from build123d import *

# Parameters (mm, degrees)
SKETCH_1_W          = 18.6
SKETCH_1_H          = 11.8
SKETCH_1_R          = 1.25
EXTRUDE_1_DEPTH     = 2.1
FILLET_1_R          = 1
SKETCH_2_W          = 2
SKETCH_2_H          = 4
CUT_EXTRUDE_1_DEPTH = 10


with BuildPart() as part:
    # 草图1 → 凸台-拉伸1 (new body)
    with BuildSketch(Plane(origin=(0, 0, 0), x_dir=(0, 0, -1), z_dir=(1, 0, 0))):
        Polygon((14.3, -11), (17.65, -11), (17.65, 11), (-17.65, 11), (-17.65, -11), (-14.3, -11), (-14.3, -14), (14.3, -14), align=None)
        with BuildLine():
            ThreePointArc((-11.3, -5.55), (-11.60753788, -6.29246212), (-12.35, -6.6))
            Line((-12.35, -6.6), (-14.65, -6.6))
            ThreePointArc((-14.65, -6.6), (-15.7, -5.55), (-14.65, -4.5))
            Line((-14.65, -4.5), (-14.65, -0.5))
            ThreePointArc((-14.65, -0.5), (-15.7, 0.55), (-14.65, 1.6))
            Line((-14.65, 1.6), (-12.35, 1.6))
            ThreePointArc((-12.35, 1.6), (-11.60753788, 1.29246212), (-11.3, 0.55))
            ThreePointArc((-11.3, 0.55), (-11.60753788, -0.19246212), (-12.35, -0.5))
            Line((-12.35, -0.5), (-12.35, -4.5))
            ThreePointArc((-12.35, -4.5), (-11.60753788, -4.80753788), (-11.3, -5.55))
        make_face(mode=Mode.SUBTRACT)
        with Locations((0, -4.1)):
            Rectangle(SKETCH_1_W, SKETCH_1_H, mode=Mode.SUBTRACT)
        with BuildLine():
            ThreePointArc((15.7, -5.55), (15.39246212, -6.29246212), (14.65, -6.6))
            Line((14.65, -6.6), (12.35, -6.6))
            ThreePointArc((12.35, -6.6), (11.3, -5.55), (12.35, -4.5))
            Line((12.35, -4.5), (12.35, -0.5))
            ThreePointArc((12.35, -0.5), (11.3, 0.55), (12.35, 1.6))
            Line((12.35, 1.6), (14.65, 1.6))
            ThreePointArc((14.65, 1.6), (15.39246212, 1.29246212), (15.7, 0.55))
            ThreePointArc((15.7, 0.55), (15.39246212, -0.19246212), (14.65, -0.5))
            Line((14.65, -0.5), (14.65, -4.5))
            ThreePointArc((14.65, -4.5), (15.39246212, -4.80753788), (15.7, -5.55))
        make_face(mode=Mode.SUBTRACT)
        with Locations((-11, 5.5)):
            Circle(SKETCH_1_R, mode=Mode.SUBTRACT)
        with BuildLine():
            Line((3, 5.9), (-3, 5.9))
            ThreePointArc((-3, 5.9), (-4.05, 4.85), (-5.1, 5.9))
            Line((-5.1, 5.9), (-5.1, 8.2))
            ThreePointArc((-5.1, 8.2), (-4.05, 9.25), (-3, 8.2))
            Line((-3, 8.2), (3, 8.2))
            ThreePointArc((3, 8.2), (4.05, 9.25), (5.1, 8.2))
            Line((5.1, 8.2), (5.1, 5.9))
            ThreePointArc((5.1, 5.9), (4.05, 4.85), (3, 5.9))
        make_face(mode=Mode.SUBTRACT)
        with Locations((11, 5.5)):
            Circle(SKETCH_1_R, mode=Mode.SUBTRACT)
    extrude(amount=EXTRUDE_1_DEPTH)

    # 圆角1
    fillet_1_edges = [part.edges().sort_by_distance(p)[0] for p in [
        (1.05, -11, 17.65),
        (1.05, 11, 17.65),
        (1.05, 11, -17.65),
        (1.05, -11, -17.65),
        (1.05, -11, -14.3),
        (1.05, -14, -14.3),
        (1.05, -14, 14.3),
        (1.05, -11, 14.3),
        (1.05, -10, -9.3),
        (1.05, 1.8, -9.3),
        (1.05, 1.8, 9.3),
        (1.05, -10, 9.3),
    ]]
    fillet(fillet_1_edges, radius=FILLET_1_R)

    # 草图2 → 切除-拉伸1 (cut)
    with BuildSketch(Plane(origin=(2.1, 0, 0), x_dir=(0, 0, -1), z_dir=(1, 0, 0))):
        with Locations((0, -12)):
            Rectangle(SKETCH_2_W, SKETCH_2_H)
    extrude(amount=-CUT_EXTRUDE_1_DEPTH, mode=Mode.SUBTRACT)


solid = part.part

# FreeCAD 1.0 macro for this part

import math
import FreeCAD as App
import Part
import Sketcher
Q = App.Units.Quantity


def edges_at(feature, points):
    """Names of the edges that pass closest to the given points."""
    edges = feature.Shape.Edges
    near = lambda p: min(range(len(edges)), key=lambda i: edges[i].distToShape(Part.Vertex(*p))[0])
    return sorted({f"Edge{near(p) + 1}" for p in points})


def add_polygon(sketch, points):
    """Adds a closed chain of lines whose ends are joined by coincident constraints."""
    first, n = sketch.GeometryCount, len(points)
    for a, b in zip(points, points[1:] + points[:1]):
        sketch.addGeometry(Part.LineSegment(App.Vector(*a, 0), App.Vector(*b, 0)), False)
    for i in range(n):
        sketch.addConstraint(Sketcher.Constraint("Coincident", first + i, 2, first + (i + 1) % n, 1))

doc = App.newDocument("Part")
body = doc.addObject("PartDesign::Body", "Body")

# Sketch on YZ plane
sketch1 = body.newObject("Sketcher::SketchObject", "Sketch")
sketch1.AttachmentSupport = (doc.getObject("YZ_Plane"), [""])
sketch1.MapMode = "FlatFace"
add_polygon(sketch1, [(-11, -14.3), (-11, -17.6), (11, -17.6), (11, 17.6), (-11, 17.6), (-11, 14.3), (-14, 14.3), (-14, -14.3)])  # lines 0-7
sketch1.addGeometry(Part.ArcOfCircle(Part.Circle(App.Vector(-5.6, 12.4, 0), App.Vector(0, 0, 1), 1.1), math.radians(-90), math.radians(0)), False)  # 8
sketch1.addGeometry(Part.ArcOfCircle(Part.Circle(App.Vector(-5.5, 12.4, 0), App.Vector(0, 0, 1), 1.1), math.radians(-180), math.radians(-90)), False)  # 9
sketch1.addGeometry(Part.LineSegment(App.Vector(-6.6, 12.3, 0), App.Vector(-6.6, 14.7, 0)), False)  # 10
sketch1.addGeometry(Part.ArcOfCircle(Part.Circle(App.Vector(-5.5, 14.7, 0), App.Vector(0, 0, 1), 1.1), math.radians(0), math.radians(180)), False)  # 11
sketch1.addGeometry(Part.LineSegment(App.Vector(-4.5, 14.7, 0), App.Vector(-0.5, 14.7, 0)), False)  # 12
sketch1.addGeometry(Part.ArcOfCircle(Part.Circle(App.Vector(0.6, 14.7, 0), App.Vector(0, 0, 1), 1.1), math.radians(0), math.radians(180)), False)  # 13
sketch1.addGeometry(Part.LineSegment(App.Vector(1.6, 14.7, 0), App.Vector(1.6, 12.3, 0)), False)  # 14
sketch1.addGeometry(Part.ArcOfCircle(Part.Circle(App.Vector(0.5, 12.4, 0), App.Vector(0, 0, 1), 1.1), math.radians(-90), math.radians(0)), False)  # 15
sketch1.addGeometry(Part.ArcOfCircle(Part.Circle(App.Vector(0.6, 12.4, 0), App.Vector(0, 0, 1), 1.1), math.radians(-180), math.radians(-90)), False)  # 16
sketch1.addGeometry(Part.LineSegment(App.Vector(-0.5, 12.3, 0), App.Vector(-4.5, 12.3, 0)), False)  # 17
add_polygon(sketch1, [(-10, -9.3), (-10, 9.3), (1.8, 9.3), (1.8, -9.3)])  # lines 18-21
sketch1.addGeometry(Part.ArcOfCircle(Part.Circle(App.Vector(-5.6, -14.6, 0), App.Vector(0, 0, 1), 1.1), math.radians(-90), math.radians(0)), False)  # 22
sketch1.addGeometry(Part.ArcOfCircle(Part.Circle(App.Vector(-5.5, -14.6, 0), App.Vector(0, 0, 1), 1.1), math.radians(-180), math.radians(-90)), False)  # 23
sketch1.addGeometry(Part.LineSegment(App.Vector(-6.6, -14.7, 0), App.Vector(-6.6, -12.3, 0)), False)  # 24
sketch1.addGeometry(Part.ArcOfCircle(Part.Circle(App.Vector(-5.5, -12.3, 0), App.Vector(0, 0, 1), 1.1), math.radians(0), math.radians(180)), False)  # 25
sketch1.addGeometry(Part.LineSegment(App.Vector(-4.5, -12.3, 0), App.Vector(-0.5, -12.3, 0)), False)  # 26
sketch1.addGeometry(Part.ArcOfCircle(Part.Circle(App.Vector(0.6, -12.3, 0), App.Vector(0, 0, 1), 1.1), math.radians(0), math.radians(180)), False)  # 27
sketch1.addGeometry(Part.LineSegment(App.Vector(1.6, -12.3, 0), App.Vector(1.6, -14.7, 0)), False)  # 28
sketch1.addGeometry(Part.ArcOfCircle(Part.Circle(App.Vector(0.5, -14.6, 0), App.Vector(0, 0, 1), 1.1), math.radians(-90), math.radians(0)), False)  # 29
sketch1.addGeometry(Part.ArcOfCircle(Part.Circle(App.Vector(0.6, -14.6, 0), App.Vector(0, 0, 1), 1.1), math.radians(-180), math.radians(-90)), False)  # 30
sketch1.addGeometry(Part.LineSegment(App.Vector(-0.5, -14.7, 0), App.Vector(-4.5, -14.7, 0)), False)  # 31
sketch1.addGeometry(Part.Circle(App.Vector(5.5, 11, 0), App.Vector(0, 0, 1), 1.2), False)  # 32
sketch1.addGeometry(Part.ArcOfCircle(Part.Circle(App.Vector(5.9, -4, 0), App.Vector(0, 0, 1), 1.1), math.radians(90), math.radians(270)), False)  # 33
sketch1.addGeometry(Part.LineSegment(App.Vector(5.9, -3, 0), App.Vector(5.9, 3, 0)), False)  # 34
sketch1.addGeometry(Part.ArcOfCircle(Part.Circle(App.Vector(5.9, 4, 0), App.Vector(0, 0, 1), 1.1), math.radians(90), math.radians(270)), False)  # 35
sketch1.addGeometry(Part.LineSegment(App.Vector(5.9, 5.1, 0), App.Vector(8.2, 5.1, 0)), False)  # 36
sketch1.addGeometry(Part.ArcOfCircle(Part.Circle(App.Vector(8.2, 4, 0), App.Vector(0, 0, 1), 1.1), math.radians(-90), math.radians(90)), False)  # 37
sketch1.addGeometry(Part.LineSegment(App.Vector(8.2, 3, 0), App.Vector(8.2, -3, 0)), False)  # 38
sketch1.addGeometry(Part.ArcOfCircle(Part.Circle(App.Vector(8.2, -4, 0), App.Vector(0, 0, 1), 1.1), math.radians(-90), math.radians(90)), False)  # 39
sketch1.addGeometry(Part.LineSegment(App.Vector(8.2, -5.1, 0), App.Vector(5.9, -5.1, 0)), False)  # 40
sketch1.addGeometry(Part.Circle(App.Vector(5.5, -11, 0), App.Vector(0, 0, 1), 1.2), False)  # 41
sketch1.addConstraint(Sketcher.Constraint("Tangent", 8, 1, 9, 2))
sketch1.addConstraint(Sketcher.Constraint("Tangent", 9, 1, 10, 1))
sketch1.addConstraint(Sketcher.Constraint("Tangent", 10, 2, 11, 2))
sketch1.addConstraint(Sketcher.Constraint("Coincident", 11, 1, 12, 1))
sketch1.addConstraint(Sketcher.Constraint("Coincident", 12, 2, 13, 2))
sketch1.addConstraint(Sketcher.Constraint("Tangent", 13, 1, 14, 1))
sketch1.addConstraint(Sketcher.Constraint("Tangent", 14, 2, 15, 2))
sketch1.addConstraint(Sketcher.Constraint("Tangent", 15, 1, 16, 2))
sketch1.addConstraint(Sketcher.Constraint("Coincident", 16, 1, 17, 1))
sketch1.addConstraint(Sketcher.Constraint("Coincident", 17, 2, 8, 2))
sketch1.addConstraint(Sketcher.Constraint("Tangent", 22, 1, 23, 2))
sketch1.addConstraint(Sketcher.Constraint("Tangent", 23, 1, 24, 1))
sketch1.addConstraint(Sketcher.Constraint("Tangent", 24, 2, 25, 2))
sketch1.addConstraint(Sketcher.Constraint("Coincident", 25, 1, 26, 1))
sketch1.addConstraint(Sketcher.Constraint("Coincident", 26, 2, 27, 2))
sketch1.addConstraint(Sketcher.Constraint("Tangent", 27, 1, 28, 1))
sketch1.addConstraint(Sketcher.Constraint("Tangent", 28, 2, 29, 2))
sketch1.addConstraint(Sketcher.Constraint("Tangent", 29, 1, 30, 2))
sketch1.addConstraint(Sketcher.Constraint("Coincident", 30, 1, 31, 1))
sketch1.addConstraint(Sketcher.Constraint("Coincident", 31, 2, 22, 2))
sketch1.addConstraint(Sketcher.Constraint("Coincident", 33, 1, 34, 1))
sketch1.addConstraint(Sketcher.Constraint("Coincident", 34, 2, 35, 2))
sketch1.addConstraint(Sketcher.Constraint("Tangent", 35, 1, 36, 1))
sketch1.addConstraint(Sketcher.Constraint("Tangent", 36, 2, 37, 2))
sketch1.addConstraint(Sketcher.Constraint("Coincident", 37, 1, 38, 1))
sketch1.addConstraint(Sketcher.Constraint("Coincident", 38, 2, 39, 2))
sketch1.addConstraint(Sketcher.Constraint("Tangent", 39, 1, 40, 1))
sketch1.addConstraint(Sketcher.Constraint("Tangent", 40, 2, 33, 2))
sketch1.addConstraint(Sketcher.Constraint("Vertical", 0))
sketch1.addConstraint(Sketcher.Constraint("Horizontal", 1))
sketch1.addConstraint(Sketcher.Constraint("Vertical", 2))
sketch1.addConstraint(Sketcher.Constraint("Horizontal", 3))
sketch1.addConstraint(Sketcher.Constraint("Vertical", 4))
sketch1.addConstraint(Sketcher.Constraint("Horizontal", 5))
sketch1.addConstraint(Sketcher.Constraint("Vertical", 6))
sketch1.addConstraint(Sketcher.Constraint("Horizontal", 7))
sketch1.addConstraint(Sketcher.Constraint("Vertical", 10))
sketch1.addConstraint(Sketcher.Constraint("Horizontal", 12))
sketch1.addConstraint(Sketcher.Constraint("Vertical", 14))
sketch1.addConstraint(Sketcher.Constraint("Horizontal", 17))
sketch1.addConstraint(Sketcher.Constraint("Vertical", 18))
sketch1.addConstraint(Sketcher.Constraint("Horizontal", 19))
sketch1.addConstraint(Sketcher.Constraint("Vertical", 20))
sketch1.addConstraint(Sketcher.Constraint("Horizontal", 21))
sketch1.addConstraint(Sketcher.Constraint("Vertical", 24))
sketch1.addConstraint(Sketcher.Constraint("Horizontal", 26))
sketch1.addConstraint(Sketcher.Constraint("Vertical", 28))
sketch1.addConstraint(Sketcher.Constraint("Horizontal", 31))
sketch1.addConstraint(Sketcher.Constraint("Vertical", 34))
sketch1.addConstraint(Sketcher.Constraint("Horizontal", 36))
sketch1.addConstraint(Sketcher.Constraint("Vertical", 38))
sketch1.addConstraint(Sketcher.Constraint("Horizontal", 40))
sketch1.addConstraint(Sketcher.Constraint("Equal", 8, 9))
sketch1.addConstraint(Sketcher.Constraint("Equal", 9, 11))
sketch1.addConstraint(Sketcher.Constraint("Equal", 11, 13))
sketch1.addConstraint(Sketcher.Constraint("Equal", 13, 15))
sketch1.addConstraint(Sketcher.Constraint("Equal", 15, 16))
sketch1.addConstraint(Sketcher.Constraint("Equal", 16, 22))
sketch1.addConstraint(Sketcher.Constraint("Equal", 22, 23))
sketch1.addConstraint(Sketcher.Constraint("Equal", 23, 25))
sketch1.addConstraint(Sketcher.Constraint("Equal", 25, 27))
sketch1.addConstraint(Sketcher.Constraint("Equal", 27, 29))
sketch1.addConstraint(Sketcher.Constraint("Equal", 29, 30))
sketch1.addConstraint(Sketcher.Constraint("Equal", 30, 33))
sketch1.addConstraint(Sketcher.Constraint("Equal", 33, 35))
sketch1.addConstraint(Sketcher.Constraint("Equal", 35, 37))
sketch1.addConstraint(Sketcher.Constraint("Equal", 37, 39))
sketch1.addConstraint(Sketcher.Constraint("Equal", 32, 41))
sketch1.addConstraint(Sketcher.Constraint("Symmetric", 0, 2, 2, 2, -1, 1))
sketch1.addConstraint(Sketcher.Constraint("Symmetric", 11, 3, 22, 3, -1))
sketch1.addConstraint(Sketcher.Constraint("Symmetric", 15, 3, 27, 3, -1))
sketch1.addConstraint(Sketcher.Constraint("Symmetric", 33, 3, 35, 3, -1))
sketch1.addConstraint(Sketcher.Constraint("Symmetric", 32, 3, 41, 3, -1))
sketch1.addConstraint(Sketcher.Constraint("Symmetric", 4, 2, 7, 2, -1))
sketch1.addConstraint(Sketcher.Constraint("Horizontal", 11, 3, 13, 3))
sketch1.addConstraint(Sketcher.Constraint("Horizontal", 9, 3, 15, 3))
sketch1.addConstraint(Sketcher.Constraint("Horizontal", 25, 3, 27, 3))
sketch1.addConstraint(Sketcher.Constraint("Horizontal", 23, 3, 29, 3))
sketch1.addConstraint(Sketcher.Constraint("Horizontal", 10, 2, 11, 1))
sketch1.addConstraint(Sketcher.Constraint("Horizontal", 14, 2, 16, 1))
sketch1.addConstraint(Sketcher.Constraint("Horizontal", 24, 2, 25, 1))
sketch1.addConstraint(Sketcher.Constraint("Horizontal", 28, 2, 30, 1))
sketch1.addConstraint(Sketcher.Constraint("Vertical", 37, 3, 39, 3))
sketch1.addConstraint(Sketcher.Constraint("Vertical", 25, 3, 8, 1))
sketch1.addConstraint(Sketcher.Constraint("Vertical", 30, 3, 15, 1))
sketch1.addConstraint(Sketcher.Constraint("Vertical", 8, 1, 22, 1))
sketch1.addConstraint(Sketcher.Constraint("Vertical", 15, 1, 29, 1))
sketch1.addConstraint(Sketcher.Constraint("Vertical", 35, 3, 33, 1))
sketch1.addConstraint(Sketcher.Constraint("Vertical", 36, 2, 37, 1))
sketch1.addConstraint(Sketcher.Constraint("Equal", 40, 10))
sketch1.addConstraint(Sketcher.Constraint("Diameter", 32, Q("2.5 mm")))
sketch1.addConstraint(Sketcher.Constraint("DistanceX", 1, 1, 1, 2, Q("22 mm")))
sketch1.addConstraint(Sketcher.Constraint("DistanceX", 5, 2, 5, 1, Q("3 mm")))
sketch1.addConstraint(Sketcher.Constraint("DistanceX", 12, 1, 12, 2, Q("4 mm")))
sketch1.addConstraint(Sketcher.Constraint("DistanceY", 34, 1, 34, 2, Q("6 mm")))
sketch1.addConstraint(Sketcher.Constraint("Radius", 8, Q("1.05 mm")))
sketch1.addConstraint(Sketcher.Constraint("DistanceX", 19, 1, 19, 2, Q("11.8 mm")))
sketch1.addConstraint(Sketcher.Constraint("DistanceX", 36, 1, 36, 2, Q("2.3 mm")))
sketch1.addConstraint(Sketcher.Constraint("DistanceY", 2, 1, 2, 2, Q("35.3 mm")))
sketch1.addConstraint(Sketcher.Constraint("DistanceY", 6, 2, 6, 1, Q("28.6 mm")))
sketch1.addConstraint(Sketcher.Constraint("DistanceY", 18, 1, 18, 2, Q("18.6 mm")))
sketch1.addConstraint(Sketcher.Constraint("DistanceY", -1, 1, 32, 3, Q("11 mm")))
sketch1.addConstraint(Sketcher.Constraint("DistanceX", 18, 2, -1, 1, Q("10 mm")))
sketch1.addConstraint(Sketcher.Constraint("DistanceY", 22, 3, 8, 3, Q("27 mm")))
sketch1.addConstraint(Sketcher.Constraint("DistanceY", 18, 2, 8, 1, Q("2 mm")))
sketch1.addConstraint(Sketcher.Constraint("DistanceX", -1, 1, 32, 3, Q("5.5 mm")))
sketch1.addConstraint(Sketcher.Constraint("DistanceX", -1, 1, 33, 3, Q("5.9 mm")))
sketch1.addConstraint(Sketcher.Constraint("DistanceX", 9, 1, -1, 1, Q("6.6 mm")))
pad1 = body.newObject("PartDesign::Pad", "Pad")
pad1.Profile = sketch1
pad1.Length = 2.1
doc.recompute()

fillet = body.newObject("PartDesign::Fillet", "Fillet")
fillet.Base = (pad1, edges_at(pad1, [
    (1.05, -11, 17.65),
    (1.05, 11, 17.65),
    (1.05, 11, -17.65),
    (1.05, -11, -17.65),
    (1.05, -11, -14.3),
    (1.05, -14, -14.3),
    (1.05, -14, 14.3),
    (1.05, -11, 14.3),
    (1.05, -10, -9.3),
    (1.05, 1.8, -9.3),
    (1.05, 1.8, 9.3),
    (1.05, -10, 9.3),
]))
fillet.Radius = 1

# Sketch on YZ plane
sketch2 = body.newObject("Sketcher::SketchObject", "Sketch001")
sketch2.AttachmentSupport = (doc.getObject("YZ_Plane"), [""])
sketch2.MapMode = "FlatFace"
sketch2.AttachmentOffset = App.Placement(App.Vector(0, 0, 2.1), App.Rotation())
add_polygon(sketch2, [(-10, 1), (-14, 1), (-14, -1), (-10, -1)])  # lines 0-3
sketch2.addConstraint(Sketcher.Constraint("Horizontal", 0))
sketch2.addConstraint(Sketcher.Constraint("Vertical", 1))
sketch2.addConstraint(Sketcher.Constraint("Horizontal", 2))
sketch2.addConstraint(Sketcher.Constraint("Vertical", 3))
sketch2.addConstraint(Sketcher.Constraint("DistanceX", 0, 2, 0, 1, Q("4 mm")))
sketch2.addConstraint(Sketcher.Constraint("DistanceY", 1, 2, 1, 1, Q("2 mm")))
sketch2.addConstraint(Sketcher.Constraint("DistanceX", 0, 2, -1, 1, Q("14 mm")))
sketch2.addConstraint(Sketcher.Constraint("DistanceY", -1, 1, 0, 2, Q("1 mm")))
pocket1 = body.newObject("PartDesign::Pocket", "Pocket")
pocket1.Profile = sketch2
pocket1.Length = 10

doc.recompute()
